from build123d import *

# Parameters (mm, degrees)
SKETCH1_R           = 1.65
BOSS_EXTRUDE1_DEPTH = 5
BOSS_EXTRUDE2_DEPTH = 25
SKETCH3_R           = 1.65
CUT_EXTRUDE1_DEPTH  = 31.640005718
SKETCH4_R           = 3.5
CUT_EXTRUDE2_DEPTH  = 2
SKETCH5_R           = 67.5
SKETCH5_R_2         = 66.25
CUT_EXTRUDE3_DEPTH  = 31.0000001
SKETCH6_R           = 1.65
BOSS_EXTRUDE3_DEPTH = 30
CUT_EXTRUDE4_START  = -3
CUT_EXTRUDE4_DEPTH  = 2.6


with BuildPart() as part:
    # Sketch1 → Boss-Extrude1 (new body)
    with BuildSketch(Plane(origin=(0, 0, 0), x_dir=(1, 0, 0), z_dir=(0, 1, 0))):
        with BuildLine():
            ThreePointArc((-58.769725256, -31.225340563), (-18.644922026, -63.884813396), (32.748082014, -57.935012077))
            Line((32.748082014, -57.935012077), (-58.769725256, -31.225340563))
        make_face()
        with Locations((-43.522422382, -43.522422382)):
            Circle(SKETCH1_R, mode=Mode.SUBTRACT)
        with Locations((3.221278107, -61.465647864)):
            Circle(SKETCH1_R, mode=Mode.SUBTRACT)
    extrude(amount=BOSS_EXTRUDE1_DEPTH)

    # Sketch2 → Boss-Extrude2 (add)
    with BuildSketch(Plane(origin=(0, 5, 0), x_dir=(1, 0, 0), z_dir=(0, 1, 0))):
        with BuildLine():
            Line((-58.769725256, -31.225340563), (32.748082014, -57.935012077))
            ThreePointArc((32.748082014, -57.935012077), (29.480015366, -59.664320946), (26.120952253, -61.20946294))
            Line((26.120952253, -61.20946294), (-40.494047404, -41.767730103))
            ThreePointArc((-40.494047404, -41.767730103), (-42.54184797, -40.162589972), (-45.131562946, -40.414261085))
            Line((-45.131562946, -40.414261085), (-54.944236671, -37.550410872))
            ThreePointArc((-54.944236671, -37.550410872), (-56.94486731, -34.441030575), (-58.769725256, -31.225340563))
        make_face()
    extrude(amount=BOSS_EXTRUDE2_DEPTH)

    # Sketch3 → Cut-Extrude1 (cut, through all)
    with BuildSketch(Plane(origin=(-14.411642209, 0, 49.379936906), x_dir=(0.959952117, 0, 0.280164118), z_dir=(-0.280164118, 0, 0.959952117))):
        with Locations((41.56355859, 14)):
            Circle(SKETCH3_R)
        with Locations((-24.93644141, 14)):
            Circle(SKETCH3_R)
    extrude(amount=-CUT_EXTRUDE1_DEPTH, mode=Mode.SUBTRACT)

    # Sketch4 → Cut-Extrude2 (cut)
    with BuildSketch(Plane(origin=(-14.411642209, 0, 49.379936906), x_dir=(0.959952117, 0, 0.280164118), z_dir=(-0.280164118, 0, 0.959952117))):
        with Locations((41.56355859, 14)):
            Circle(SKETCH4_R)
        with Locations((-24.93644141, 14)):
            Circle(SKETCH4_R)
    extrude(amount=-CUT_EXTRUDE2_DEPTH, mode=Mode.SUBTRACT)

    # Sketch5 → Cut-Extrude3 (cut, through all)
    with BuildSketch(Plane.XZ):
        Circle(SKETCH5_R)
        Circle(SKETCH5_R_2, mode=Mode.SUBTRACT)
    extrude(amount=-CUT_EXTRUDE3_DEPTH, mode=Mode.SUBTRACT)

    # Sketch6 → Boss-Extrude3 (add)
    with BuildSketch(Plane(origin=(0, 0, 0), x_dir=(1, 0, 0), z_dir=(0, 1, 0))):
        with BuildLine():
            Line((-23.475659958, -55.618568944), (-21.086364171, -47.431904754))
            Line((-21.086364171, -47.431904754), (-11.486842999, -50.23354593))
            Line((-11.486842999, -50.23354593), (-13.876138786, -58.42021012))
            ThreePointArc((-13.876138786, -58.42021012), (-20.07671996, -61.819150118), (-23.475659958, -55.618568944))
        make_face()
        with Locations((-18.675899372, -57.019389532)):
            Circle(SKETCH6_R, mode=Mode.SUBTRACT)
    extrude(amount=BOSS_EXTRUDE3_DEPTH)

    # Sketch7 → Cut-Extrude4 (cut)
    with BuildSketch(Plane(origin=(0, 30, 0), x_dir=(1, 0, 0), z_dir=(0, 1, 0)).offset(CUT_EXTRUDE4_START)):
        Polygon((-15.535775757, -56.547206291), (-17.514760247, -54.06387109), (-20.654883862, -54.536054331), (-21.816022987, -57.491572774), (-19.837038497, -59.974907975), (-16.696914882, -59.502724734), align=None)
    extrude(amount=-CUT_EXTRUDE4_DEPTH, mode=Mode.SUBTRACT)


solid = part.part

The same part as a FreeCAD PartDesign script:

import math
import FreeCAD as App
import Part
import Sketcher

V = App.Vector
Q = App.Units.Quantity

doc = App.newDocument("Part")
body = doc.addObject("PartDesign::Body", "Body")

# Sketch on XZ plane
sketch1 = doc.addObject("Sketcher::SketchObject", "Sketch")
body.addObject(sketch1)
sketch1.AttachmentSupport = (doc.XZ_Plane, [""])
sketch1.MapMode = "FlatFace"
sketch1.addGeometry(Part.ArcOfCircle(Part.Circle(V(0, 0, 0), V(0, 0, 1), 66.5), math.radians(61), math.radians(152)), False)
sketch1.addGeometry(Part.LineSegment(V(32.7, 57.9, 0), V(-58.8, 31.2, 0)), False)
sketch1.addGeometry(Part.Circle(V(3.2, 61.5, 0), V(0, 0, 1), 1.6), False)
sketch1.addGeometry(Part.Circle(V(-43.5, 43.5, 0), V(0, 0, 1), 1.6), False)
sketch1.addConstraint(Sketcher.Constraint("Coincident", 0, 1, 1, 1))
sketch1.addConstraint(Sketcher.Constraint("Coincident", 1, 2, 0, 2))
sketch1.addConstraint(Sketcher.Constraint("Coincident", 0, 3, -1, 1))
sketch1.addConstraint(Sketcher.Constraint("Equal", 2, 3))
sketch1.addConstraint(Sketcher.Constraint("Diameter", 2, 3.3))
sketch1.addConstraint(Sketcher.Constraint("Radius", 0, 66.55))
sketch1.addConstraint(Sketcher.Constraint("Angle", 1, Q("-163.73 deg")))
sketch1.addConstraint(Sketcher.Constraint("DistanceX", 3, 3, 2, 3, 46.7437))
sketch1.addConstraint(Sketcher.Constraint("DistanceX", -1, 1, 2, 3, 3.221278))
sketch1.addConstraint(Sketcher.Constraint("DistanceY", -1, 1, 1, 2, 31.225341))
sketch1.addConstraint(Sketcher.Constraint("DistanceY", 3, 3, 0, 1, 14.41259))
sketch1.addConstraint(Sketcher.Constraint("DistanceY", -1, 1, 2, 3, 61.465648))
pad1 = doc.addObject("PartDesign::Pad", "Pad")
body.addObject(pad1)
pad1.Profile = sketch1
pad1.Length = 5
pad1.Reversed = True

# Sketch on XZ plane
sketch2 = doc.addObject("Sketcher::SketchObject", "Sketch001")
body.addObject(sketch2)
sketch2.AttachmentSupport = (doc.XZ_Plane, [""])
sketch2.MapMode = "FlatFace"
sketch2.AttachmentOffset = App.Placement(V(0, 0, -5), App.Rotation())
sketch2.addGeometry(Part.LineSegment(V(32.7, 57.9, 0), V(-58.8, 31.2, 0)), False)
sketch2.addGeometry(Part.ArcOfCircle(Part.Circle(V(0, 0, 0), V(0, 0, 1), 66.5), math.radians(145.65), math.radians(152.02)), False)
sketch2.addGeometry(Part.LineSegment(V(-54.9, 37.6, 0), V(-45.1, 40.4, 0)), False)
sketch2.addGeometry(Part.ArcOfCircle(Part.Circle(V(-43.5, 43.5, 0), V(0, 0, 1), 3.5), math.radians(-117), math.radians(-30)), False)
sketch2.addGeometry(Part.LineSegment(V(-40.5, 41.8, 0), V(26.1, 61.2, 0)), False)
sketch2.addGeometry(Part.ArcOfCircle(Part.Circle(V(0, 0, 0), V(0, 0, 1), 66.6), math.radians(60.52), math.radians(66.89)), False)
sketch2.addConstraint(Sketcher.Constraint("Coincident", 0, 2, 1, 2))
sketch2.addConstraint(Sketcher.Constraint("Coincident", 1, 1, 2, 1))
sketch2.addConstraint(Sketcher.Constraint("Coincident", 2, 2, 3, 1))
sketch2.addConstraint(Sketcher.Constraint("Coincident", 3, 2, 4, 1))
sketch2.addConstraint(Sketcher.Constraint("Coincident", 4, 2, 5, 2))
sketch2.addConstraint(Sketcher.Constraint("Coincident", 5, 1, 0, 1))
sketch2.addConstraint(Sketcher.Constraint("Coincident", 1, 3, -1, 1))
sketch2.addConstraint(Sketcher.Constraint("Coincident", 5, 3, -1, 1))
sketch2.addConstraint(Sketcher.Constraint("Equal", 1, 5))
sketch2.addConstraint(Sketcher.Constraint("Parallel", 0, 2))
sketch2.addConstraint(Sketcher.Constraint("Parallel", 2, 4))
sketch2.addConstraint(Sketcher.Constraint("Radius", 3, 3.5))
sketch2.addConstraint(Sketcher.Constraint("Radius", 1, 66.55))
sketch2.addConstraint(Sketcher.Constraint("Angle", 0, Q("-163.73 deg")))
sketch2.addConstraint(Sketcher.Constraint("DistanceX", 3, 2, 4, 2, 66.615))
sketch2.addConstraint(Sketcher.Constraint("DistanceY", 2, 2, 4, 2, 20.795202))
sketch2.addConstraint(Sketcher.Constraint("DistanceY", -1, 1, 0, 2, 31.225341))
sketch2.addConstraint(Sketcher.Constraint("DistanceY", -1, 1, 1, 1, 37.550411))
sketch2.addConstraint(Sketcher.Constraint("DistanceY", -1, 1, 2, 2, 40.414261))
pad2 = doc.addObject("PartDesign::Pad", "Pad001")
body.addObject(pad2)
pad2.Profile = sketch2
pad2.Length = 25
pad2.Reversed = True

# Sketch on an angled plane
sketch3 = doc.addObject("Sketcher::SketchObject", "Sketch002")
body.addObject(sketch3)
sketch3.Placement = App.Placement(V(-14.411642, 0, 49.379937), App.Rotation(V(0.959952117, 0, 0.280164118), V(0, 1, 0), V(-0.280164118, 0, 0.959952117), "ZXY"))
sketch3.addGeometry(Part.Circle(V(41.6, 14, 0), V(0, 0, 1), 1.6), False)
sketch3.addGeometry(Part.Circle(V(-24.9, 14, 0), V(0, 0, 1), 1.6), False)
sketch3.addConstraint(Sketcher.Constraint("Equal", 0, 1))
sketch3.addConstraint(Sketcher.Constraint("Horizontal", 0, 3, 1, 3))
sketch3.addConstraint(Sketcher.Constraint("Diameter", 0, 3.3))
sketch3.addConstraint(Sketcher.Constraint("DistanceY", -1, 1, 0, 3, 14.0))
sketch3.addConstraint(Sketcher.Constraint("DistanceX", 1, 3, 0, 3, 66.5))
sketch3.addConstraint(Sketcher.Constraint("DistanceX", -1, 1, 0, 3, 41.563559))
pocket1 = doc.addObject("PartDesign::Pocket", "Pocket")
body.addObject(pocket1)
pocket1.Profile = sketch3
pocket1.Type = "ThroughAll"

# Sketch on an angled plane
sketch4 = doc.addObject("Sketcher::SketchObject", "Sketch003")
body.addObject(sketch4)
sketch4.Placement = App.Placement(V(-14.411642, 0, 49.379937), App.Rotation(V(0.959952117, 0, 0.280164118), V(0, 1, 0), V(-0.280164118, 0, 0.959952117), "ZXY"))
sketch4.addGeometry(Part.Circle(V(41.6, 14, 0), V(0, 0, 1), 3.5), False)
sketch4.addGeometry(Part.Circle(V(-24.9, 14, 0), V(0, 0, 1), 3.5), False)
sketch4.addConstraint(Sketcher.Constraint("Equal", 0, 1))
sketch4.addConstraint(Sketcher.Constraint("Horizontal", 0, 3, 1, 3))
sketch4.addConstraint(Sketcher.Constraint("Diameter", 0, 7.0))
sketch4.addConstraint(Sketcher.Constraint("DistanceY", -1, 1, 0, 3, 14.0))
sketch4.addConstraint(Sketcher.Constraint("DistanceX", 1, 3, 0, 3, 66.5))
sketch4.addConstraint(Sketcher.Constraint("DistanceX", -1, 1, 0, 3, 41.563559))
pocket2 = doc.addObject("PartDesign::Pocket", "Pocket001")
body.addObject(pocket2)
pocket2.Profile = sketch4
pocket2.Length = 2

# Sketch on XZ plane
sketch5 = doc.addObject("Sketcher::SketchObject", "Sketch004")
body.addObject(sketch5)
sketch5.AttachmentSupport = (doc.XZ_Plane, [""])
sketch5.MapMode = "FlatFace"
sketch5.addGeometry(Part.Circle(V(0, 0, 0), V(0, 0, 1), 68), False)
sketch5.addGeometry(Part.Circle(V(0, 0, 0), V(0, 0, 1), 66), False)
sketch5.addConstraint(Sketcher.Constraint("Coincident", 0, 3, -1, 1))
sketch5.addConstraint(Sketcher.Constraint("Coincident", 1, 3, -1, 1))
sketch5.addConstraint(Sketcher.Constraint("Diameter", 0, 135.0))
sketch5.addConstraint(Sketcher.Constraint("Diameter", 1, 132.5))
pocket3 = doc.addObject("PartDesign::Pocket", "Pocket002")
body.addObject(pocket3)
pocket3.Profile = sketch5
pocket3.Type = "ThroughAll"

# Sketch on XZ plane
sketch6 = doc.addObject("Sketcher::SketchObject", "Sketch005")
body.addObject(sketch6)
sketch6.AttachmentSupport = (doc.XZ_Plane, [""])
sketch6.MapMode = "FlatFace"
sketch6.addGeometry(Part.LineSegment(V(-21.1, 47.4, 0), V(-23.5, 55.6, 0)), False)
sketch6.addGeometry(Part.ArcOfCircle(Part.Circle(V(-18.7, 57, 0), V(0, 0, 1), 5), math.radians(16), math.radians(196)), False)
sketch6.addGeometry(Part.LineSegment(V(-13.9, 58.4, 0), V(-11.5, 50.2, 0)), False)
sketch6.addGeometry(Part.LineSegment(V(-11.5, 50.2, 0), V(-21.1, 47.4, 0)), False)
sketch6.addGeometry(Part.Circle(V(-18.7, 57, 0), V(0, 0, 1), 1.6), False)
sketch6.addConstraint(Sketcher.Constraint("Tangent", 0, 2, 1, 2))
sketch6.addConstraint(Sketcher.Constraint("Tangent", 1, 1, 2, 1))
sketch6.addConstraint(Sketcher.Constraint("Coincident", 2, 2, 3, 1))
sketch6.addConstraint(Sketcher.Constraint("Coincident", 3, 2, 0, 1))
sketch6.addConstraint(Sketcher.Constraint("Coincident", 4, 3, 1, 3))
sketch6.addConstraint(Sketcher.Constraint("Parallel", 0, 2))
sketch6.addConstraint(Sketcher.Constraint("Perpendicular", 2, 3))
sketch6.addConstraint(Sketcher.Constraint("Radius", 1, 5.0))
sketch6.addConstraint(Sketcher.Constraint("Diameter", 4, 3.3))
sketch6.addConstraint(Sketcher.Constraint("Angle", 0, Q("106.27 deg")))
sketch6.addConstraint(Sketcher.Constraint("Distance", 0, 8.528201))
sketch6.addConstraint(Sketcher.Constraint("DistanceX", 1, 3, -1, 1, 18.675899))
sketch6.addConstraint(Sketcher.Constraint("DistanceY", -1, 1, 1, 3, 57.01939))
pad3 = doc.addObject("PartDesign::Pad", "Pad002")
body.addObject(pad3)
pad3.Profile = sketch6
pad3.Length = 30
pad3.Reversed = True

# Sketch on XZ plane
sketch7 = doc.addObject("Sketcher::SketchObject", "Sketch006")
body.addObject(sketch7)
sketch7.AttachmentSupport = (doc.XZ_Plane, [""])
sketch7.MapMode = "FlatFace"
sketch7.AttachmentOffset = App.Placement(V(0, 0, -27), App.Rotation())
sketch7.addGeometry(Part.LineSegment(V(-15.5, 56.5, 0), V(-17.5, 54.1, 0)), False)
sketch7.addGeometry(Part.LineSegment(V(-17.5, 54.1, 0), V(-20.7, 54.5, 0)), False)
sketch7.addGeometry(Part.LineSegment(V(-20.7, 54.5, 0), V(-21.8, 57.5, 0)), False)
sketch7.addGeometry(Part.LineSegment(V(-21.8, 57.5, 0), V(-19.8, 60, 0)), False)
sketch7.addGeometry(Part.LineSegment(V(-19.8, 60, 0), V(-16.7, 59.5, 0)), False)
sketch7.addGeometry(Part.LineSegment(V(-16.7, 59.5, 0), V(-15.5, 56.5, 0)), False)
sketch7.addConstraint(Sketcher.Constraint("Coincident", 0, 2, 1, 1))
sketch7.addConstraint(Sketcher.Constraint("Coincident", 1, 2, 2, 1))
sketch7.addConstraint(Sketcher.Constraint("Coincident", 2, 2, 3, 1))
sketch7.addConstraint(Sketcher.Constraint("Coincident", 3, 2, 4, 1))
sketch7.addConstraint(Sketcher.Constraint("Coincident", 4, 2, 5, 1))
sketch7.addConstraint(Sketcher.Constraint("Coincident", 5, 2, 0, 1))
sketch7.addConstraint(Sketcher.Constraint("Parallel", 0, 3))
sketch7.addConstraint(Sketcher.Constraint("Parallel", 1, 4))
sketch7.addConstraint(Sketcher.Constraint("Parallel", 2, 5))
sketch7.addConstraint(Sketcher.Constraint("Equal", 0, 1))
sketch7.addConstraint(Sketcher.Constraint("Equal", 1, 2))
sketch7.addConstraint(Sketcher.Constraint("Equal", 2, 3))
sketch7.addConstraint(Sketcher.Constraint("DistanceY", 0, 2, 2, 2, 3.427702))
sketch7.addConstraint(Sketcher.Constraint("DistanceX", 0, 2, -1, 1, 17.51476))
sketch7.addConstraint(Sketcher.Constraint("DistanceY", -1, 1, 0, 2, 54.063871))
sketch7.addConstraint(Sketcher.Constraint("DistanceX", 3, 2, -1, 1, 19.837038))
sketch7.addConstraint(Sketcher.Constraint("DistanceX", 2, 2, 1, 2, 1.161139))
sketch7.addConstraint(Sketcher.Constraint("DistanceY", 1, 2, 2, 2, 2.955518))
pocket4 = doc.addObject("PartDesign::Pocket", "Pocket003")
body.addObject(pocket4)
pocket4.Profile = sketch7
pocket4.Length = 2.6
pocket4.Reversed = True

doc.recompute()
